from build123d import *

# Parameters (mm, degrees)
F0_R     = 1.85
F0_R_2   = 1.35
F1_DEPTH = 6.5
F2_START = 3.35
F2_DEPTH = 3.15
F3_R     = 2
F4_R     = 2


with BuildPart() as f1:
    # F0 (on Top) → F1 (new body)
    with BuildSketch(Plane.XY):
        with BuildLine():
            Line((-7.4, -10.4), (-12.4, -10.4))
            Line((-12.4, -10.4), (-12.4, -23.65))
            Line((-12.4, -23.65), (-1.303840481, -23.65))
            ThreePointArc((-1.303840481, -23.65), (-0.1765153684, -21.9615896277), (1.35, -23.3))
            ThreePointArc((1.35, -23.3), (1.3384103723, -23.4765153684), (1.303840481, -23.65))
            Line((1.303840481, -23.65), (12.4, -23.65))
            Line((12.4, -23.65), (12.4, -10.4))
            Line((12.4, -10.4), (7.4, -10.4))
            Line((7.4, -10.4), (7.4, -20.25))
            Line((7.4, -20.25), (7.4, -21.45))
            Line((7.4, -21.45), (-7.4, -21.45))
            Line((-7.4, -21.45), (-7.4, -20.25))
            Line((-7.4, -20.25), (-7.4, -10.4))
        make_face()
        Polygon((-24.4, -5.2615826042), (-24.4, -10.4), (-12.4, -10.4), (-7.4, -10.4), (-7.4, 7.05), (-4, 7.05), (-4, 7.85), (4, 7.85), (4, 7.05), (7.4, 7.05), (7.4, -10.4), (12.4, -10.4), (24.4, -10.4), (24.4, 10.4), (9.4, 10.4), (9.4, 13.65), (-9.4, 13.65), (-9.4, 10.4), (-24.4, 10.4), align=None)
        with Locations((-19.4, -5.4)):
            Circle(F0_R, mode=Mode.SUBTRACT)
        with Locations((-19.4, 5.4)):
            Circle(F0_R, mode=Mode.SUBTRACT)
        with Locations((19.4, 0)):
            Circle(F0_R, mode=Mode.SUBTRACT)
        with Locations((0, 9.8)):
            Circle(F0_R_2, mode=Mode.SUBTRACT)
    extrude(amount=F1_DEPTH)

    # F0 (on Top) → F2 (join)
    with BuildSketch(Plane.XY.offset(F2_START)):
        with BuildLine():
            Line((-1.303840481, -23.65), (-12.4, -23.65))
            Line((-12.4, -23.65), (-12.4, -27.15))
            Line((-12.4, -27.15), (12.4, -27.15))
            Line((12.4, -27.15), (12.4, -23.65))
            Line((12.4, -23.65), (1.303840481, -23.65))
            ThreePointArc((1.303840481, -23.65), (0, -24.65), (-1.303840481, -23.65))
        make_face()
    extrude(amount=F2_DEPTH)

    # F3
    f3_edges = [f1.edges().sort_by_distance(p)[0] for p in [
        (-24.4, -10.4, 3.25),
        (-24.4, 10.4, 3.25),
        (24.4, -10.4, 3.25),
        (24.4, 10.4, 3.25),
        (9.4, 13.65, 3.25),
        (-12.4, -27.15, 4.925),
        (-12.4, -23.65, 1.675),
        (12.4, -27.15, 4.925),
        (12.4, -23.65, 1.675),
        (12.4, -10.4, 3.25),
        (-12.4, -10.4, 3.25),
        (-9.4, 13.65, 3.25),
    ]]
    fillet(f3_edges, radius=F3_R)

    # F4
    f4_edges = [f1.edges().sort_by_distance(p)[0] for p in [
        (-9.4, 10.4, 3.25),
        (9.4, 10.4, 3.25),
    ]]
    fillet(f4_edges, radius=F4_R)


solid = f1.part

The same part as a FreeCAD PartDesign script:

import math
import FreeCAD as App
import Part
import Sketcher
from FreeCAD import Vector
Q = App.Units.Quantity


def edges_at(feature, points):
    """Names of the edges that pass closest to the given points."""
    edges = feature.Shape.Edges
    near = lambda p: min(range(len(edges)), key=lambda i: edges[i].distToShape(Part.Vertex(*p))[0])
    return sorted({f"Edge{near(p) + 1}" for p in points})


def add_polygon(sketch, points):
    """Adds a closed chain of lines whose ends are joined by coincident constraints."""
    first, n = sketch.GeometryCount, len(points)
    for a, b in zip(points, points[1:] + points[:1]):
        sketch.addGeometry(Part.LineSegment(App.Vector(*a, 0), App.Vector(*b, 0)), False)
    for i in range(n):
        sketch.addConstraint(Sketcher.Constraint("Coincident", first + i, 2, first + (i + 1) % n, 1))

doc = App.newDocument("Part")
body = doc.addObject("PartDesign::Body", "Body")

sketch1 = doc.addObject("Sketcher::SketchObject", "Sketch")
body.addObject(sketch1)
sketch1.AttachmentSupport = (doc.XY_Plane, [""])
sketch1.MapMode = "FlatFace"
sketch1.addGeometry(Part.LineSegment(Vector(-12.4, -10.4, 0), Vector(-12.4, -23.65, 0)), False)
sketch1.addGeometry(Part.LineSegment(Vector(-12.4, -23.65, 0), Vector(-1.3, -23.65, 0)), False)
sketch1.addGeometry(Part.ArcOfCircle(Part.Circle(Vector(0, -23.3, 0), Vector(0, 0, 1), 1.35), math.radians(0), math.radians(195)), False)
sketch1.addGeometry(Part.ArcOfCircle(Part.Circle(Vector(0, -23.3, 0), Vector(0, 0, 1), 1.35), math.radians(-15.03), math.radians(0)), False)
sketch1.addGeometry(Part.LineSegment(Vector(1.3, -23.65, 0), Vector(12.4, -23.65, 0)), False)
sketch1.addGeometry(Part.LineSegment(Vector(12.4, -23.65, 0), Vector(12.4, -10.4, 0)), False)
sketch1.addGeometry(Part.LineSegment(Vector(12.4, -10.4, 0), Vector(24.4, -10.4, 0)), False)
sketch1.addGeometry(Part.LineSegment(Vector(24.4, -10.4, 0), Vector(24.4, 10.4, 0)), False)
sketch1.addGeometry(Part.LineSegment(Vector(24.4, 10.4, 0), Vector(9.4, 10.4, 0)), False)
sketch1.addGeometry(Part.LineSegment(Vector(9.4, 10.4, 0), Vector(9.4, 13.65, 0)), False)
sketch1.addGeometry(Part.LineSegment(Vector(9.4, 13.65, 0), Vector(-9.4, 13.65, 0)), False)
sketch1.addGeometry(Part.LineSegment(Vector(-9.4, 13.65, 0), Vector(-9.4, 10.4, 0)), False)
sketch1.addGeometry(Part.LineSegment(Vector(-9.4, 10.4, 0), Vector(-24.4, 10.4, 0)), False)
sketch1.addGeometry(Part.LineSegment(Vector(-24.4, 10.4, 0), Vector(-24.4, -10.4, 0)), False)
sketch1.addGeometry(Part.LineSegment(Vector(-24.4, -10.4, 0), Vector(-12.4, -10.4, 0)), False)
sketch1.addGeometry(Part.Circle(Vector(-19.4, -5.4, 0), Vector(0, 0, 1), 1.85), False)
add_polygon(sketch1, [(7.4, -21.45), (-7.4, -21.45), (-7.4, 7.05), (-4, 7.05), (-4, 7.85), (4, 7.85), (4, 7.05), (7.4, 7.05)])
sketch1.addGeometry(Part.Circle(Vector(-19.4, 5.4, 0), Vector(0, 0, 1), 1.85), False)
sketch1.addGeometry(Part.Circle(Vector(19.4, 0, 0), Vector(0, 0, 1), 1.85), False)
sketch1.addGeometry(Part.Circle(Vector(0, 9.8, 0), Vector(0, 0, 1), 1.35), False)
sketch1.addConstraint([
    Sketcher.Constraint("Coincident", 0, 2, 1, 1),
    Sketcher.Constraint("Coincident", 1, 2, 2, 2),
    Sketcher.Constraint("Tangent", 2, 1, 3, 2),
    Sketcher.Constraint("Coincident", 3, 1, 4, 1),
    Sketcher.Constraint("Coincident", 4, 2, 5, 1),
    Sketcher.Constraint("Coincident", 5, 2, 6, 1),
    Sketcher.Constraint("Coincident", 6, 2, 7, 1),
    Sketcher.Constraint("Coincident", 7, 2, 8, 1),
    Sketcher.Constraint("Coincident", 8, 2, 9, 1),
    Sketcher.Constraint("Coincident", 9, 2, 10, 1),
    Sketcher.Constraint("Coincident", 10, 2, 11, 1),
    Sketcher.Constraint("Coincident", 11, 2, 12, 1),
    Sketcher.Constraint("Coincident", 12, 2, 13, 1),
    Sketcher.Constraint("Coincident", 13, 2, 14, 1),
    Sketcher.Constraint("Coincident", 14, 2, 0, 1),
    Sketcher.Constraint("Vertical", 0),
    Sketcher.Constraint("Horizontal", 1),
    Sketcher.Constraint("Horizontal", 4),
    Sketcher.Constraint("Vertical", 5),
    Sketcher.Constraint("Horizontal", 6),
    Sketcher.Constraint("Vertical", 7),
    Sketcher.Constraint("Horizontal", 8),
    Sketcher.Constraint("Vertical", 9),
    Sketcher.Constraint("Horizontal", 10),
    Sketcher.Constraint("Vertical", 11),
    Sketcher.Constraint("Horizontal", 12),
    Sketcher.Constraint("Vertical", 13),
    Sketcher.Constraint("Horizontal", 14),
    Sketcher.Constraint("Horizontal", 16),
    Sketcher.Constraint("Vertical", 17),
    Sketcher.Constraint("Horizontal", 18),
    Sketcher.Constraint("Vertical", 19),
    Sketcher.Constraint("Horizontal", 20),
    Sketcher.Constraint("Vertical", 21),
    Sketcher.Constraint("Horizontal", 22),
    Sketcher.Constraint("Vertical", 23),
    Sketcher.Constraint("Equal", 2, 3),
    Sketcher.Constraint("Equal", 15, 24),
    Sketcher.Constraint("Equal", 24, 25),
    Sketcher.Constraint("Equal", 3, 26),
    Sketcher.Constraint("Symmetric", 6, 2, 12, 2, -1, 1),
    Sketcher.Constraint("Symmetric", 1, 2, 3, 1, -2),
    Sketcher.Constraint("Symmetric", 8, 2, 11, 2, -2),
    Sketcher.Constraint("Symmetric", 5, 2, 14, 2, -2),
    Sketcher.Constraint("Symmetric", 18, 2, 21, 2, -2),
    Sketcher.Constraint("Symmetric", 15, 3, 24, 3, -1),
    Sketcher.Constraint("PointOnObject", 25, 3, -1),
    Sketcher.Constraint("PointOnObject", 26, 3, -2),
    Sketcher.Constraint("Horizontal", 3, 3, 2, 1),
    Sketcher.Constraint("Equal", 18, 22),
    Sketcher.Constraint("Diameter", 15, Q("3.7 mm")),
    Sketcher.Constraint("Diameter", 26, Q("2.7 mm")),
    Sketcher.Constraint("DistanceX", 6, 1, 6, 2, Q("12 mm")),
    Sketcher.Constraint("DistanceX", 8, 2, 8, 1, Q("15 mm")),
    Sketcher.Constraint("DistanceX", 20, 1, 20, 2, Q("8 mm")),
    Sketcher.Constraint("DistanceX", 10, 2, 10, 1, Q("18.8 mm")),
    Sketcher.Constraint("DistanceX", 16, 2, 16, 1, Q("14.8 mm")),
    Sketcher.Constraint("DistanceY", 7, 1, 7, 2, Q("20.8 mm")),
    Sketcher.Constraint("DistanceY", 17, 1, 17, 2, Q("28.5 mm")),
    Sketcher.Constraint("DistanceY", 19, 1, 19, 2, Q("0.8 mm")),
    Sketcher.Constraint("DistanceX", 15, 3, 0, 2, Q("7 mm")),
    Sketcher.Constraint("DistanceX", 5, 2, 25, 3, Q("7 mm")),
    Sketcher.Constraint("DistanceY", 24, 3, 11, 2, Q("5 mm")),
    Sketcher.Constraint("DistanceY", 0, 2, 0, 1, Q("13.25 mm")),
    Sketcher.Constraint("DistanceY", 9, 1, 9, 2, Q("3.25 mm")),
    Sketcher.Constraint("DistanceY", 2, 3, -1, 1, Q("23.3 mm")),
    Sketcher.Constraint("DistanceY", -1, 1, 26, 3, Q("9.8 mm")),
    Sketcher.Constraint("DistanceY", 0, 2, 16, 2, Q("2.2 mm")),
])
pad1 = doc.addObject("PartDesign::Pad", "Pad")
body.addObject(pad1)
pad1.Profile = sketch1
pad1.Length = 6.5

sketch2 = doc.addObject("Sketcher::SketchObject", "Sketch001")
body.addObject(sketch2)
sketch2.AttachmentSupport = (doc.XY_Plane, [""])
sketch2.MapMode = "FlatFace"
sketch2.AttachmentOffset = App.Placement(Vector(0, 0, 3.35), App.Rotation())
sketch2.addGeometry([
    Part.LineSegment(Vector(-1.3, -23.6, 0), Vector(-12.4, -23.6, 0)),
    Part.LineSegment(Vector(-12.4, -23.6, 0), Vector(-12.4, -27.1, 0)),
    Part.LineSegment(Vector(-12.4, -27.1, 0), Vector(12.4, -27.1, 0)),
    Part.LineSegment(Vector(12.4, -27.1, 0), Vector(12.4, -23.6, 0)),
    Part.LineSegment(Vector(12.4, -23.6, 0), Vector(1.3, -23.6, 0)),
    Part.ArcOfCircle(Part.Circle(Vector(0, -23.3, 0), Vector(0, 0, 1), 1.4), math.radians(-165), math.radians(-15)),
], False)
sketch2.addConstraint([
    Sketcher.Constraint("Coincident", 0, 2, 1, 1),
    Sketcher.Constraint("Coincident", 1, 2, 2, 1),
    Sketcher.Constraint("Coincident", 2, 2, 3, 1),
    Sketcher.Constraint("Coincident", 3, 2, 4, 1),
    Sketcher.Constraint("Coincident", 4, 2, 5, 2),
    Sketcher.Constraint("Coincident", 5, 1, 0, 1),
    Sketcher.Constraint("Horizontal", 0),
    Sketcher.Constraint("Vertical", 1),
    Sketcher.Constraint("Horizontal", 2),
    Sketcher.Constraint("Vertical", 3),
    Sketcher.Constraint("Horizontal", 4),
    Sketcher.Constraint("Symmetric", 0, 2, 3, 2, -2),
    Sketcher.Constraint("PointOnObject", 5, 3, -2),
    Sketcher.Constraint("Radius", 5, Q("1.35 mm")),
    Sketcher.Constraint("DistanceX", 2, 1, 2, 2, Q("24.8 mm")),
    Sketcher.Constraint("DistanceY", 1, 2, 1, 1, Q("3.5 mm")),
    Sketcher.Constraint("DistanceY", 5, 3, -1, 1, Q("23.3 mm")),
    Sketcher.Constraint("DistanceY", 0, 2, -1, 1, Q("23.65 mm")),
])
pad2 = doc.addObject("PartDesign::Pad", "Pad001")
body.addObject(pad2)
pad2.Profile = sketch2
pad2.Length = 3.15
doc.recompute()

fillet = doc.addObject("PartDesign::Fillet", "Fillet")
body.addObject(fillet)
fillet.Base = (pad2, edges_at(pad2, [
    (-24.4, -10.4, 3.25),
    (-24.4, 10.4, 3.25),
    (24.4, -10.4, 3.25),
    (24.4, 10.4, 3.25),
    (9.4, 13.65, 3.25),
    (-12.4, -27.15, 4.925),
    (-12.4, -23.65, 1.675),
    (12.4, -27.15, 4.925),
    (12.4, -23.65, 1.675),
    (12.4, -10.4, 3.25),
    (-12.4, -10.4, 3.25),
    (-9.4, 13.65, 3.25),
]))
fillet.Radius = 2
doc.recompute()

fillet2 = doc.addObject("PartDesign::Fillet", "Fillet001")
body.addObject(fillet2)
fillet2.Base = (fillet, edges_at(fillet, [(-9.4, 10.4, 3.25), (9.4, 10.4, 3.25)]))
fillet2.Radius = 2

doc.recompute()
